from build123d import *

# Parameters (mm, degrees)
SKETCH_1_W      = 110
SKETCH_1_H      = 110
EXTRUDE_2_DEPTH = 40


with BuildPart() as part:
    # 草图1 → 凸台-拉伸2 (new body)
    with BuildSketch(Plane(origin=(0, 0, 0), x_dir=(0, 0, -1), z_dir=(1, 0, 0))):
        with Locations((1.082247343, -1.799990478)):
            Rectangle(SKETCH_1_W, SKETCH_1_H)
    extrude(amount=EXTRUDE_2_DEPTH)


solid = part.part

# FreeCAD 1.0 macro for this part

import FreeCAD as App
import Part
import Sketcher

V = App.Vector


def add_polygon(sketch, points):
    """Adds a closed chain of lines whose ends are joined by coincident constraints."""
    first, n = sketch.GeometryCount, len(points)
    for a, b in zip(points, points[1:] + points[:1]):
        sketch.addGeometry(Part.LineSegment(App.Vector(*a, 0), App.Vector(*b, 0)), False)
    for i in range(n):
        sketch.addConstraint(Sketcher.Constraint("Coincident", first + i, 2, first + (i + 1) % n, 1))

doc = App.newDocument("Part")
body = doc.addObject("PartDesign::Body", "Body")

# Sketch on YZ plane
sketch1 = body.newObject("Sketcher::SketchObject", "Sketch")
sketch1.AttachmentSupport = (doc.getObject("YZ_Plane"), [""])
sketch1.MapMode = "FlatFace"
add_polygon(sketch1, [(53, 54), (-57, 54), (-57, -56), (53, -56)])  # lines 0-3
sketch1.addConstraint(Sketcher.Constraint("Horizontal", 0))
sketch1.addConstraint(Sketcher.Constraint("Vertical", 1))
sketch1.addConstraint(Sketcher.Constraint("Horizontal", 2))
sketch1.addConstraint(Sketcher.Constraint("Vertical", 3))
sketch1.addConstraint(Sketcher.Constraint("Equal", 2, 1))
sketch1.addConstraint(Sketcher.Constraint("DistanceX", 0, 2, 0, 1, 110.0))
sketch1.addConstraint(Sketcher.Constraint("DistanceX", 0, 2, -1, 1, 56.79999))
sketch1.addConstraint(Sketcher.Constraint("DistanceY", -1, 1, 0, 2, 53.917753))
pad1 = body.newObject("PartDesign::Pad", "Pad")
pad1.Profile = sketch1
pad1.Length = 40

doc.recompute()
